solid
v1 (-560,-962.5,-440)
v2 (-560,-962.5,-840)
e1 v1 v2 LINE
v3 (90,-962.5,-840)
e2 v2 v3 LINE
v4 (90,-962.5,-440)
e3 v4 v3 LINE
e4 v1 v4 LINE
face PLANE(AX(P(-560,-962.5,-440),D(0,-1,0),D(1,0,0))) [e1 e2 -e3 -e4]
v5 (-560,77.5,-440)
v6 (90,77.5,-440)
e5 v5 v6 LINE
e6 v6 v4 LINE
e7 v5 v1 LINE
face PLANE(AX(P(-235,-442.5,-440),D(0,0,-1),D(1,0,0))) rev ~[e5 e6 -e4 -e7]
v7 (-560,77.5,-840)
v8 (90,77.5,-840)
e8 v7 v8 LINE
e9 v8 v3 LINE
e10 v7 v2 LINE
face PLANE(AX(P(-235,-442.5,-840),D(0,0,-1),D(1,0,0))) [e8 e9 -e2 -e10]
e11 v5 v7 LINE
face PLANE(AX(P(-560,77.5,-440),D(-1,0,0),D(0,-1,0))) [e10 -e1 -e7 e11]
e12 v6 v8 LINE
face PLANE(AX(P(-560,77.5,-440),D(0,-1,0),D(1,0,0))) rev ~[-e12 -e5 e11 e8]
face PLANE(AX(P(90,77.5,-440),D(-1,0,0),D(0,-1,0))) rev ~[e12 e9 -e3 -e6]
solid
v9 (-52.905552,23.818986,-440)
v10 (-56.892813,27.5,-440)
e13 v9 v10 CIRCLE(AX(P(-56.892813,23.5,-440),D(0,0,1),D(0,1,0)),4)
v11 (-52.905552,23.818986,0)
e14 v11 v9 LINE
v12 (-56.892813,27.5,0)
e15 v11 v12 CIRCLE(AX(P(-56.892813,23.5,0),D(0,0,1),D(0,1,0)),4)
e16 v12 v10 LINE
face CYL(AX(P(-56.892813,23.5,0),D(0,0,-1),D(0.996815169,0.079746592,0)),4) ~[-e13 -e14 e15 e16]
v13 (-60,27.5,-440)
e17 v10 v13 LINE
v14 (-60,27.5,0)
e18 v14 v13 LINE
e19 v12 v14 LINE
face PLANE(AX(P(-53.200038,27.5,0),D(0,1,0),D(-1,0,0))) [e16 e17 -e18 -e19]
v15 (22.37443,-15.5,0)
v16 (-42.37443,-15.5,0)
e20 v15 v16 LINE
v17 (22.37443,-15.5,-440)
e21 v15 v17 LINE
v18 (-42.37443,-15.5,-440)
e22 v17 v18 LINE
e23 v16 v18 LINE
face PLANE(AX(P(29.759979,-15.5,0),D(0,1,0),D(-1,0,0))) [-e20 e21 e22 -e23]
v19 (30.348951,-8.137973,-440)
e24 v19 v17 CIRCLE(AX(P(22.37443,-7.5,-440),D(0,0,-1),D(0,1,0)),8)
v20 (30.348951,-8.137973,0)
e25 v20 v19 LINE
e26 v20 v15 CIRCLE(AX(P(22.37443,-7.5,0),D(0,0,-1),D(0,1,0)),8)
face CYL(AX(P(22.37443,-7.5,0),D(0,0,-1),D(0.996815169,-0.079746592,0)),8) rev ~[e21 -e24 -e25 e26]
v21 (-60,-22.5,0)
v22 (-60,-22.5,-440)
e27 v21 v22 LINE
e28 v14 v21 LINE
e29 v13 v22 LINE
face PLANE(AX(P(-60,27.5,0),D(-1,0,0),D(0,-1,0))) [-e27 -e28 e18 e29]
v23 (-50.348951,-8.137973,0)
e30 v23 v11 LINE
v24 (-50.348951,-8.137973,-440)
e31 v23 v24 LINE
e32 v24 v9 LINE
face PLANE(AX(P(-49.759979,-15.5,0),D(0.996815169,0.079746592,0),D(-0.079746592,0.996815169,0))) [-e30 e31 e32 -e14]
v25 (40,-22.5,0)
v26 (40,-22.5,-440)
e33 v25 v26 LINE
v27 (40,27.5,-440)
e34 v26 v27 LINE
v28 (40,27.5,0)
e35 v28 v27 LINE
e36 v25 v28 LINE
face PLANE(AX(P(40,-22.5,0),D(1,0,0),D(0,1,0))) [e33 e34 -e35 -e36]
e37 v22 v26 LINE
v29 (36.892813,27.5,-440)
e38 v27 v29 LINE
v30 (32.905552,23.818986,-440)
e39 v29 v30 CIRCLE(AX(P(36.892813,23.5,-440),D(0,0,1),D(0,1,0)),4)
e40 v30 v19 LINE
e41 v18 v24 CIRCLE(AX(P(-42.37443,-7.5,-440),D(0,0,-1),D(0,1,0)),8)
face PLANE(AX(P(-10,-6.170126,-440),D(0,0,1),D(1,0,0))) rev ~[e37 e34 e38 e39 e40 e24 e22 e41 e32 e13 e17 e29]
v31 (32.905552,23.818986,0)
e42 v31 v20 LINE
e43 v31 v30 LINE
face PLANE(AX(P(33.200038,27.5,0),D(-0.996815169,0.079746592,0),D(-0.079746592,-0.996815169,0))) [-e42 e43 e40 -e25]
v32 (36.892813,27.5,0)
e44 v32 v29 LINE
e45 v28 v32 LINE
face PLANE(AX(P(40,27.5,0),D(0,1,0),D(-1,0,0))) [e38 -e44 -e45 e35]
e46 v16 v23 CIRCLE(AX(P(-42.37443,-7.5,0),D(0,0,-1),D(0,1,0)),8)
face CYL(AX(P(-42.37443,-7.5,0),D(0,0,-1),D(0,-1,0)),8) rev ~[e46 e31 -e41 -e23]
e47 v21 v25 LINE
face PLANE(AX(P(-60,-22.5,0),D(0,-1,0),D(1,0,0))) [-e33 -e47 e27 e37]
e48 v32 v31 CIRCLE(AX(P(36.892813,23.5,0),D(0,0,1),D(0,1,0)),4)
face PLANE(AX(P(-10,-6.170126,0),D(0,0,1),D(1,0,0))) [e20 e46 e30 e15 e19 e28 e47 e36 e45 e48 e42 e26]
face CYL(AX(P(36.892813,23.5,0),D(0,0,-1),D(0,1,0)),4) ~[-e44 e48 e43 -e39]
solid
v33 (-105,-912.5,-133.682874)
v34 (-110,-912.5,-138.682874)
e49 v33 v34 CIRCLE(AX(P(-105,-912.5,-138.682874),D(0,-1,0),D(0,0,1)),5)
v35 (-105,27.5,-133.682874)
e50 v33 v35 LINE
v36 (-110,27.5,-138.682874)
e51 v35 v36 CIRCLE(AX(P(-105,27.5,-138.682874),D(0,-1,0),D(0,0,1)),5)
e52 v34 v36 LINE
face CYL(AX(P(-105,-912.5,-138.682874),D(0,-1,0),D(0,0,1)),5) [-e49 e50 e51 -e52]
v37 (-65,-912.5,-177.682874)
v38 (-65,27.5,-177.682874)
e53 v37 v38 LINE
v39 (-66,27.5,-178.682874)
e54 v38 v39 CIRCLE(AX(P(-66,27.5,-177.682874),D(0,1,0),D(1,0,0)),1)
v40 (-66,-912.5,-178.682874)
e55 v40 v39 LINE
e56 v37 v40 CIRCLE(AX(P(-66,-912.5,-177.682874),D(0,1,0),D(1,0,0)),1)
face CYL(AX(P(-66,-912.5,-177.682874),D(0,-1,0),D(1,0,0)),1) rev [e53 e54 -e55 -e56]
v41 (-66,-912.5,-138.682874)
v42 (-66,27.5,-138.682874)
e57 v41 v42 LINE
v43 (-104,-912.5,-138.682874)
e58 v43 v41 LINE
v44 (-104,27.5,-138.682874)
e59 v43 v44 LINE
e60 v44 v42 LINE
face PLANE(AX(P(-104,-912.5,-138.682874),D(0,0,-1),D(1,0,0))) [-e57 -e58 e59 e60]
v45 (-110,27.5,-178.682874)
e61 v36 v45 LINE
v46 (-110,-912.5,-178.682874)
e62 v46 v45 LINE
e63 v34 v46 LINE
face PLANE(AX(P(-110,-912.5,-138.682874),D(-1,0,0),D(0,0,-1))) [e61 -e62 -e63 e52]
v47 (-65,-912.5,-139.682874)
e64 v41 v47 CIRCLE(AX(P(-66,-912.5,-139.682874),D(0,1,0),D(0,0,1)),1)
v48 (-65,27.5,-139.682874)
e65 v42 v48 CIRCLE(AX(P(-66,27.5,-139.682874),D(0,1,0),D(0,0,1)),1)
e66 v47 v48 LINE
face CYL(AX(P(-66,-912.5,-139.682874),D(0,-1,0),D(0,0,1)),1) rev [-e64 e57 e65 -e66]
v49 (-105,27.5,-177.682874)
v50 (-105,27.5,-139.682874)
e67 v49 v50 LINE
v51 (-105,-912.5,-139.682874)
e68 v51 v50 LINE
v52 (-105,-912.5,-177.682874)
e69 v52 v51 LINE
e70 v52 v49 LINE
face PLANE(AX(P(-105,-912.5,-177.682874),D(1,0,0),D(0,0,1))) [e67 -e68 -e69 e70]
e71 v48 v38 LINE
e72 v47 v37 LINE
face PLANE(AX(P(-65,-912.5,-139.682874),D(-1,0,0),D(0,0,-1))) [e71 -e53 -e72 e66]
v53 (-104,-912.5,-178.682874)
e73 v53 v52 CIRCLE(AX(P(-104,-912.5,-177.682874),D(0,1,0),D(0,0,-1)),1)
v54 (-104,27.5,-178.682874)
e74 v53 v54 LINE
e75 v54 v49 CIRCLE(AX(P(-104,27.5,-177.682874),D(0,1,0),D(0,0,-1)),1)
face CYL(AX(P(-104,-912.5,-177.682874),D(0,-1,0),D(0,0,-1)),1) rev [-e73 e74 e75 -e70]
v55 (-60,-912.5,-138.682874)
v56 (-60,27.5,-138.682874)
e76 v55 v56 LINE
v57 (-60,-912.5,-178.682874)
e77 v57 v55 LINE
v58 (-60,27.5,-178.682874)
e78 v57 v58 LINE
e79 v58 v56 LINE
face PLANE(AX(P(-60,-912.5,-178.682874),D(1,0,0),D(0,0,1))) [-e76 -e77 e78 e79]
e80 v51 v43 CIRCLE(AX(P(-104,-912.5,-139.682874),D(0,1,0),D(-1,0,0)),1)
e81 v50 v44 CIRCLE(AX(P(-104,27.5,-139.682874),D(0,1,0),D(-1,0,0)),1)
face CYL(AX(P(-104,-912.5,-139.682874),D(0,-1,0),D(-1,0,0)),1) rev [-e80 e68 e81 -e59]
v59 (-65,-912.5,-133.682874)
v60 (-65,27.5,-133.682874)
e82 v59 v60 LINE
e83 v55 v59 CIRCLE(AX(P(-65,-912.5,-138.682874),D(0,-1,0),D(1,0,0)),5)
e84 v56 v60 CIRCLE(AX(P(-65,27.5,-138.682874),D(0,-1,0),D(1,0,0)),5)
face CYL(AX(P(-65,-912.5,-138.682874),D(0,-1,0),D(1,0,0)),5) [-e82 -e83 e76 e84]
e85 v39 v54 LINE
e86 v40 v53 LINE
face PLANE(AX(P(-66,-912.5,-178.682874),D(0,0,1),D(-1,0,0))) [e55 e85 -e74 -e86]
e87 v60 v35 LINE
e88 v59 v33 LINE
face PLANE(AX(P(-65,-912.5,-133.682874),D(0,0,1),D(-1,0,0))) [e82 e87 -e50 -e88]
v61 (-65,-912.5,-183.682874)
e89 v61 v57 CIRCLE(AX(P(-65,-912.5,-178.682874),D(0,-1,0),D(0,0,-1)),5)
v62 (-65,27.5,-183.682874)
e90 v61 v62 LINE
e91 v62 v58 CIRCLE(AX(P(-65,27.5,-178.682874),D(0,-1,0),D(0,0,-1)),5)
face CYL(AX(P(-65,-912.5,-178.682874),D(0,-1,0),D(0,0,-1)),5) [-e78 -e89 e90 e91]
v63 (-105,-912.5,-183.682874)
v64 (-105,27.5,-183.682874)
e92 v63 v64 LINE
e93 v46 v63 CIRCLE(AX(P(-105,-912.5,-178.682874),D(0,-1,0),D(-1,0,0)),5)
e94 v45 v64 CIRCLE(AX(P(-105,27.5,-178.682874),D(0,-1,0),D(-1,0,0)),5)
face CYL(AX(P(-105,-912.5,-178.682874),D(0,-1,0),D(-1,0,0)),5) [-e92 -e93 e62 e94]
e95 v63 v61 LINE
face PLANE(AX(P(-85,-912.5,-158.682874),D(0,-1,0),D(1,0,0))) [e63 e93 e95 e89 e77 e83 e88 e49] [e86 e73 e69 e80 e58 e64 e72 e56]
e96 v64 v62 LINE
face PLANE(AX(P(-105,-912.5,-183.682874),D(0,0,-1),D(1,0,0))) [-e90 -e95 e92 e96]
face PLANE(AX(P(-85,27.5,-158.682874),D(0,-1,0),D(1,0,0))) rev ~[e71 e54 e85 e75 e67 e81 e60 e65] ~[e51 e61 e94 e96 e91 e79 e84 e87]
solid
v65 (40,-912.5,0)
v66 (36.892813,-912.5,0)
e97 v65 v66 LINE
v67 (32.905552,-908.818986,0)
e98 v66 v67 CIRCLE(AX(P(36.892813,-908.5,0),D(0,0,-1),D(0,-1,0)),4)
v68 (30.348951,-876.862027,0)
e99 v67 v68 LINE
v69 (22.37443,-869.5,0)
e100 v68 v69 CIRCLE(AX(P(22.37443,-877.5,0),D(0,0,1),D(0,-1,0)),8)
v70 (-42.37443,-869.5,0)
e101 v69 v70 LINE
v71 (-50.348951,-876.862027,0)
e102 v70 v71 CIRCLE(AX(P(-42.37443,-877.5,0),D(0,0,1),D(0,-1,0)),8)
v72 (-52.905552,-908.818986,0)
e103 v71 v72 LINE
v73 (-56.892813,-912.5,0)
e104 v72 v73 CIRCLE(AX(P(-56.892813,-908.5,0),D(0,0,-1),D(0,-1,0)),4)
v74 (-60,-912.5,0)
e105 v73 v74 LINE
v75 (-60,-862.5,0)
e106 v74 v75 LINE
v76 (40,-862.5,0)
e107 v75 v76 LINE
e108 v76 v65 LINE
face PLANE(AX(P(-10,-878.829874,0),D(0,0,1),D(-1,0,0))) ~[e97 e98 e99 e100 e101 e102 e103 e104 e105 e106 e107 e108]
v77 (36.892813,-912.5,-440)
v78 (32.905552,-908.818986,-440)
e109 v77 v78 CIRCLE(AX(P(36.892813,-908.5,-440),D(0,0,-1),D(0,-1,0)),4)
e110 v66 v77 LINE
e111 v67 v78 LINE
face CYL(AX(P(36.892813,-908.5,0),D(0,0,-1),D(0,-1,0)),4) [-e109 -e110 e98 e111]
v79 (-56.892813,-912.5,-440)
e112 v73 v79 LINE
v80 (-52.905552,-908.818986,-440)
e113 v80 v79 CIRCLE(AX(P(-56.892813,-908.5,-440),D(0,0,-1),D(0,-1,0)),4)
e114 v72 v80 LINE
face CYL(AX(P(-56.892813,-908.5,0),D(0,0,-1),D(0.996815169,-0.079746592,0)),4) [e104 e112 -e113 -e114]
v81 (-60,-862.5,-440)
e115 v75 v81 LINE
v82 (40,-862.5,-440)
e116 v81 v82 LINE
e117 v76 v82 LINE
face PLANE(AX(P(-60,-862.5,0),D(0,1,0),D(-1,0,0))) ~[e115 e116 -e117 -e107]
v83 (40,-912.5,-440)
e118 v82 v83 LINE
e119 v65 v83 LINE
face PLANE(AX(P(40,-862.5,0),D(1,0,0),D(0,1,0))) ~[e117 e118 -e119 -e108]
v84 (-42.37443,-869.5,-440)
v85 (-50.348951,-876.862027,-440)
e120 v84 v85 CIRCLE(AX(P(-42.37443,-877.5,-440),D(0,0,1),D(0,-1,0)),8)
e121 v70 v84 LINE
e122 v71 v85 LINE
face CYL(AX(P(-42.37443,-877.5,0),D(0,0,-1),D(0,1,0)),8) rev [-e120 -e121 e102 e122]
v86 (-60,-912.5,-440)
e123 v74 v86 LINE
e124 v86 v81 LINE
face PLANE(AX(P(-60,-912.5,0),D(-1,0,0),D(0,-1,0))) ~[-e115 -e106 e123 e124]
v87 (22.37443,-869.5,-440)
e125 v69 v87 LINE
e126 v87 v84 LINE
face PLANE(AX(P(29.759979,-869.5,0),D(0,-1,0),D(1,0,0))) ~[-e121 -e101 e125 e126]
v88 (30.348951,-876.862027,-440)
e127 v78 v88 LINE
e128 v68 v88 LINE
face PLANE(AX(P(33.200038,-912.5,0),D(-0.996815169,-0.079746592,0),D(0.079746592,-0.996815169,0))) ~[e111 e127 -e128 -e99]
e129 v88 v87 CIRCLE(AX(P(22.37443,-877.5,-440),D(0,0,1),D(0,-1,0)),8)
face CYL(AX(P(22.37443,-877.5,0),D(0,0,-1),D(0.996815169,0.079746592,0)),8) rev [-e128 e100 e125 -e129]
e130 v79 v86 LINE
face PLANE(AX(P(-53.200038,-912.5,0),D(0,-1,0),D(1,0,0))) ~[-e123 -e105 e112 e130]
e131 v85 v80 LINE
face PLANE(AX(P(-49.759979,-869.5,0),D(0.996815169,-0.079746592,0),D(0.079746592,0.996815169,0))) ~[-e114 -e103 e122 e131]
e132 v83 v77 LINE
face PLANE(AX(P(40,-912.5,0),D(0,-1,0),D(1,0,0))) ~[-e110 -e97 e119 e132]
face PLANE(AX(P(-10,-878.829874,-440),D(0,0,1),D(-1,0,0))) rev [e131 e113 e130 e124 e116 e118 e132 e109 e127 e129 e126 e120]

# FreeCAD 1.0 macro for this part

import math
import FreeCAD as App
import Part
import Sketcher

V = App.Vector
Q = App.Units.Quantity


def edges_at(feature, points):
    """Names of the edges that pass closest to the given points."""
    edges = feature.Shape.Edges
    near = lambda p: min(range(len(edges)), key=lambda i: edges[i].distToShape(Part.Vertex(*p))[0])
    return sorted({f"Edge{near(p) + 1}" for p in points})


def add_polygon(sketch, points):
    """Adds a closed chain of lines whose ends are joined by coincident constraints."""
    first, n = sketch.GeometryCount, len(points)
    for a, b in zip(points, points[1:] + points[:1]):
        sketch.addGeometry(Part.LineSegment(App.Vector(*a, 0), App.Vector(*b, 0)), False)
    for i in range(n):
        sketch.addConstraint(Sketcher.Constraint("Coincident", first + i, 2, first + (i + 1) % n, 1))

doc = App.newDocument("Part")
params = doc.addObject("Spreadsheet::Sheet", "Params")
for row, (alias, value) in enumerate([
    ("sketch1_width", "100 mm"),
    ("sketch1_height", "50 mm"),
    ("pad1_length", "440 mm"),
    ("fillet_radius", "4 mm"),
    ("fillet2_radius", "8 mm"),
    ("sketch2_width", "650 mm"),
    ("sketch2_height", "1040 mm"),
    ("pad2_length", "400 mm"),
    ("sketch3_radius", "5 mm"),
    ("sketch3_radius2", "1 mm"),
    ("sketch3_width", "40 mm"),
    ("pad3_length", "940 mm"),
], start=1):
    params.set(f"A{row}", alias)
    params.set(f"B{row}", "=" + value)
    params.setAlias(f"B{row}", alias)

body = doc.addObject("PartDesign::Body", "Body")

# Sketch on XY plane
sketch1 = doc.addObject("Sketcher::SketchObject", "Sketch")
body.addObject(sketch1)
sketch1.AttachmentSupport = (doc.XY_Plane, [""])
sketch1.MapMode = "FlatFace"
add_polygon(sketch1, [(-60, 28), (-60, -22), (40, -22), (40, 28), (33, 28), (30, -16), (-50, -16), (-53, 28)])  # lines 0-7
sketch1.addConstraint(Sketcher.Constraint("Vertical", 0))
sketch1.addConstraint(Sketcher.Constraint("Horizontal", 1))
sketch1.addConstraint(Sketcher.Constraint("Vertical", 2))
sketch1.addConstraint(Sketcher.Constraint("Horizontal", 3))
sketch1.addConstraint(Sketcher.Constraint("Horizontal", 5))
sketch1.addConstraint(Sketcher.Constraint("Horizontal", 7))
sketch1.addConstraint(Sketcher.Constraint("Horizontal", 3, 2, 6, 2))
sketch1.addConstraint(Sketcher.Constraint("Equal", 3, 7))
sketch1.addConstraint(Sketcher.Constraint("Equal", 4, 6))
sketch1.addConstraint(Sketcher.Constraint("DistanceX", 1, 1, 1, 2, Q("100 mm")))
sketch1.addConstraint(Sketcher.Constraint("DistanceY", 0, 2, 0, 1, Q("50 mm")))
sketch1.addConstraint(Sketcher.Constraint("DistanceX", 0, 2, -1, 1, Q("60 mm")))
sketch1.addConstraint(Sketcher.Constraint("DistanceY", 1, 2, 4, 2, Q("7 mm")))
sketch1.addConstraint(Sketcher.Constraint("DistanceY", 0, 2, -1, 1, Q("22.5 mm")))
sketch1.addConstraint(Sketcher.Constraint("DistanceX", 3, 2, 3, 1, Q("6.799962 mm")))
sketch1.addConstraint(Sketcher.Constraint("DistanceX", 5, 2, 5, 1, Q("79.519957 mm")))
sketch1.setExpression("Constraints[17]", "Params.sketch1_width")
sketch1.setExpression("Constraints[18]", "Params.sketch1_height")
pad1 = doc.addObject("PartDesign::Pad", "Pad")
body.addObject(pad1)
pad1.Profile = sketch1
pad1.setExpression("Length", "Params.pad1_length")
pad1.Reversed = True
doc.recompute()

fillet = doc.addObject("PartDesign::Fillet", "Fillet")
body.addObject(fillet)
fillet.Base = (pad1, edges_at(pad1, [(-53.2, 27.5, -220), (33.2, 27.5, -220)]))
fillet.setExpression("Radius", "Params.fillet_radius")
doc.recompute()

fillet2 = doc.addObject("PartDesign::Fillet", "Fillet001")
body.addObject(fillet2)
fillet2.Base = (fillet, edges_at(fillet, [(-49.76, -15.5, -220), (29.76, -15.5, -220)]))
fillet2.setExpression("Radius", "Params.fillet2_radius")
body2 = doc.addObject("PartDesign::Body", "Body001")
doc.recompute()

mirroring = doc.addObject("Part::Mirroring", "Mirroring")
mirroring.Source = body
mirroring.Base = V(-10, -442.5, -220)
mirroring.Normal = V(0, -1, 0)
body2.BaseFeature = mirroring
doc.recompute()
body3 = doc.addObject("PartDesign::Body", "Body002")

# Sketch on XY plane
sketch2 = doc.addObject("Sketcher::SketchObject", "Sketch001")
body3.addObject(sketch2)
sketch2.AttachmentSupport = (doc.getObject("XY_Plane002"), [""])
sketch2.MapMode = "FlatFace"
sketch2.AttachmentOffset = App.Placement(V(0, 0, -440), App.Rotation())
add_polygon(sketch2, [(-560, -962), (-560, 78), (90, 78), (90, -962)])  # lines 0-3
sketch2.addConstraint(Sketcher.Constraint("Vertical", 0))
sketch2.addConstraint(Sketcher.Constraint("Horizontal", 1))
sketch2.addConstraint(Sketcher.Constraint("Vertical", 2))
sketch2.addConstraint(Sketcher.Constraint("Horizontal", 3))
sketch2.addConstraint(Sketcher.Constraint("DistanceX", 1, 1, 1, 2, Q("650 mm")))
sketch2.addConstraint(Sketcher.Constraint("DistanceY", 0, 1, 0, 2, Q("1040 mm")))
sketch2.addConstraint(Sketcher.Constraint("DistanceX", 0, 2, -1, 1, Q("560 mm")))
sketch2.addConstraint(Sketcher.Constraint("DistanceY", -1, 1, 0, 2, Q("77.5 mm")))
sketch2.setExpression("Constraints[8]", "Params.sketch2_width")
sketch2.setExpression("Constraints[9]", "Params.sketch2_height")
pad2 = doc.addObject("PartDesign::Pad", "Pad001")
body3.addObject(pad2)
pad2.Profile = sketch2
pad2.setExpression("Length", "Params.pad2_length")
pad2.Reversed = True
body4 = doc.addObject("PartDesign::Body", "Body003")

# Sketch on XZ plane
sketch3 = doc.addObject("Sketcher::SketchObject", "Sketch002")
body4.addObject(sketch3)
sketch3.AttachmentSupport = (doc.getObject("XZ_Plane003"), [""])
sketch3.MapMode = "FlatFace"
sketch3.AttachmentOffset = App.Placement(V(0, 0, 912.5), App.Rotation())
sketch3.addGeometry(Part.ArcOfCircle(Part.Circle(V(-65, -138.7, 0), V(0, 0, 1), 5), math.radians(0), math.radians(90)), False)
sketch3.addGeometry(Part.LineSegment(V(-65, -133.7, 0), V(-105, -133.7, 0)), False)
sketch3.addGeometry(Part.ArcOfCircle(Part.Circle(V(-105, -138.7, 0), V(0, 0, 1), 5), math.radians(90), math.radians(180)), False)
sketch3.addGeometry(Part.LineSegment(V(-110, -138.7, 0), V(-110, -178.7, 0)), False)
sketch3.addGeometry(Part.ArcOfCircle(Part.Circle(V(-105, -178.7, 0), V(0, 0, 1), 5), math.radians(180), math.radians(270)), False)
sketch3.addGeometry(Part.LineSegment(V(-105, -183.7, 0), V(-65, -183.7, 0)), False)
sketch3.addGeometry(Part.ArcOfCircle(Part.Circle(V(-65, -178.7, 0), V(0, 0, 1), 5), math.radians(-90), math.radians(0)), False)
sketch3.addGeometry(Part.LineSegment(V(-60, -178.7, 0), V(-60, -138.7, 0)), False)
sketch3.addGeometry(Part.LineSegment(V(-105, -177.7, 0), V(-105, -139.7, 0)), False)
sketch3.addGeometry(Part.ArcOfCircle(Part.Circle(V(-104, -139.7, 0), V(0, 0, 1), 1), math.radians(90), math.radians(180)), False)
sketch3.addGeometry(Part.LineSegment(V(-104, -138.7, 0), V(-66, -138.7, 0)), False)
sketch3.addGeometry(Part.ArcOfCircle(Part.Circle(V(-66, -139.7, 0), V(0, 0, 1), 1), math.radians(0), math.radians(90)), False)
sketch3.addGeometry(Part.LineSegment(V(-65, -139.7, 0), V(-65, -177.7, 0)), False)
sketch3.addGeometry(Part.ArcOfCircle(Part.Circle(V(-66, -177.7, 0), V(0, 0, 1), 1), math.radians(-90), math.radians(0)), False)
sketch3.addGeometry(Part.LineSegment(V(-66, -178.7, 0), V(-104, -178.7, 0)), False)
sketch3.addGeometry(Part.ArcOfCircle(Part.Circle(V(-104, -177.7, 0), V(0, 0, 1), 1), math.radians(180), math.radians(270)), False)
sketch3.addConstraint(Sketcher.Constraint("Tangent", 0, 2, 1, 1))
sketch3.addConstraint(Sketcher.Constraint("Tangent", 1, 2, 2, 1))
sketch3.addConstraint(Sketcher.Constraint("Tangent", 2, 2, 3, 1))
sketch3.addConstraint(Sketcher.Constraint("Tangent", 3, 2, 4, 1))
sketch3.addConstraint(Sketcher.Constraint("Tangent", 4, 2, 5, 1))
sketch3.addConstraint(Sketcher.Constraint("Tangent", 5, 2, 6, 1))
sketch3.addConstraint(Sketcher.Constraint("Tangent", 6, 2, 7, 1))
sketch3.addConstraint(Sketcher.Constraint("Tangent", 7, 2, 0, 1))
sketch3.addConstraint(Sketcher.Constraint("Tangent", 8, 2, 9, 2))
sketch3.addConstraint(Sketcher.Constraint("Tangent", 9, 1, 10, 1))
sketch3.addConstraint(Sketcher.Constraint("Tangent", 10, 2, 11, 2))
sketch3.addConstraint(Sketcher.Constraint("Tangent", 11, 1, 12, 1))
sketch3.addConstraint(Sketcher.Constraint("Tangent", 12, 2, 13, 2))
sketch3.addConstraint(Sketcher.Constraint("Tangent", 13, 1, 14, 1))
sketch3.addConstraint(Sketcher.Constraint("Tangent", 14, 2, 15, 2))
sketch3.addConstraint(Sketcher.Constraint("Tangent", 15, 1, 8, 1))
sketch3.addConstraint(Sketcher.Constraint("Horizontal", 1))
sketch3.addConstraint(Sketcher.Constraint("Vertical", 3))
sketch3.addConstraint(Sketcher.Constraint("Horizontal", 5))
sketch3.addConstraint(Sketcher.Constraint("Vertical", 7))
sketch3.addConstraint(Sketcher.Constraint("Vertical", 8))
sketch3.addConstraint(Sketcher.Constraint("Horizontal", 10))
sketch3.addConstraint(Sketcher.Constraint("Vertical", 12))
sketch3.addConstraint(Sketcher.Constraint("Horizontal", 14))
sketch3.addConstraint(Sketcher.Constraint("Equal", 0, 2))
sketch3.addConstraint(Sketcher.Constraint("Equal", 2, 4))
sketch3.addConstraint(Sketcher.Constraint("Equal", 4, 6))
sketch3.addConstraint(Sketcher.Constraint("Equal", 9, 11))
sketch3.addConstraint(Sketcher.Constraint("Equal", 11, 13))
sketch3.addConstraint(Sketcher.Constraint("Equal", 13, 15))
sketch3.addConstraint(Sketcher.Constraint("Horizontal", 7, 2, 9, 1))
sketch3.addConstraint(Sketcher.Constraint("Horizontal", 6, 2, 13, 1))
sketch3.addConstraint(Sketcher.Constraint("Vertical", 4, 2, 8, 2))
sketch3.addConstraint(Sketcher.Constraint("Vertical", 5, 2, 11, 1))
sketch3.addConstraint(Sketcher.Constraint("Equal", 5, 3))
sketch3.addConstraint(Sketcher.Constraint("Radius", 0, Q("5 mm")))
sketch3.addConstraint(Sketcher.Constraint("Radius", 9, Q("1 mm")))
sketch3.addConstraint(Sketcher.Constraint("DistanceX", 1, 2, 1, 1, Q("40 mm")))
sketch3.addConstraint(Sketcher.Constraint("DistanceX", 0, 3, -1, 1, Q("65 mm")))
sketch3.addConstraint(Sketcher.Constraint("DistanceY", 0, 3, -1, 1, Q("138.682874 mm")))
sketch3.setExpression("Constraints[35]", "Params.sketch3_radius")
sketch3.setExpression("Constraints[36]", "Params.sketch3_radius2")
sketch3.setExpression("Constraints[37]", "Params.sketch3_width")
pad3 = doc.addObject("PartDesign::Pad", "Pad002")
body4.addObject(pad3)
pad3.Profile = sketch3
pad3.setExpression("Length", "Params.pad3_length")
pad3.Reversed = True
mirroring.Visibility = False

doc.recompute()
